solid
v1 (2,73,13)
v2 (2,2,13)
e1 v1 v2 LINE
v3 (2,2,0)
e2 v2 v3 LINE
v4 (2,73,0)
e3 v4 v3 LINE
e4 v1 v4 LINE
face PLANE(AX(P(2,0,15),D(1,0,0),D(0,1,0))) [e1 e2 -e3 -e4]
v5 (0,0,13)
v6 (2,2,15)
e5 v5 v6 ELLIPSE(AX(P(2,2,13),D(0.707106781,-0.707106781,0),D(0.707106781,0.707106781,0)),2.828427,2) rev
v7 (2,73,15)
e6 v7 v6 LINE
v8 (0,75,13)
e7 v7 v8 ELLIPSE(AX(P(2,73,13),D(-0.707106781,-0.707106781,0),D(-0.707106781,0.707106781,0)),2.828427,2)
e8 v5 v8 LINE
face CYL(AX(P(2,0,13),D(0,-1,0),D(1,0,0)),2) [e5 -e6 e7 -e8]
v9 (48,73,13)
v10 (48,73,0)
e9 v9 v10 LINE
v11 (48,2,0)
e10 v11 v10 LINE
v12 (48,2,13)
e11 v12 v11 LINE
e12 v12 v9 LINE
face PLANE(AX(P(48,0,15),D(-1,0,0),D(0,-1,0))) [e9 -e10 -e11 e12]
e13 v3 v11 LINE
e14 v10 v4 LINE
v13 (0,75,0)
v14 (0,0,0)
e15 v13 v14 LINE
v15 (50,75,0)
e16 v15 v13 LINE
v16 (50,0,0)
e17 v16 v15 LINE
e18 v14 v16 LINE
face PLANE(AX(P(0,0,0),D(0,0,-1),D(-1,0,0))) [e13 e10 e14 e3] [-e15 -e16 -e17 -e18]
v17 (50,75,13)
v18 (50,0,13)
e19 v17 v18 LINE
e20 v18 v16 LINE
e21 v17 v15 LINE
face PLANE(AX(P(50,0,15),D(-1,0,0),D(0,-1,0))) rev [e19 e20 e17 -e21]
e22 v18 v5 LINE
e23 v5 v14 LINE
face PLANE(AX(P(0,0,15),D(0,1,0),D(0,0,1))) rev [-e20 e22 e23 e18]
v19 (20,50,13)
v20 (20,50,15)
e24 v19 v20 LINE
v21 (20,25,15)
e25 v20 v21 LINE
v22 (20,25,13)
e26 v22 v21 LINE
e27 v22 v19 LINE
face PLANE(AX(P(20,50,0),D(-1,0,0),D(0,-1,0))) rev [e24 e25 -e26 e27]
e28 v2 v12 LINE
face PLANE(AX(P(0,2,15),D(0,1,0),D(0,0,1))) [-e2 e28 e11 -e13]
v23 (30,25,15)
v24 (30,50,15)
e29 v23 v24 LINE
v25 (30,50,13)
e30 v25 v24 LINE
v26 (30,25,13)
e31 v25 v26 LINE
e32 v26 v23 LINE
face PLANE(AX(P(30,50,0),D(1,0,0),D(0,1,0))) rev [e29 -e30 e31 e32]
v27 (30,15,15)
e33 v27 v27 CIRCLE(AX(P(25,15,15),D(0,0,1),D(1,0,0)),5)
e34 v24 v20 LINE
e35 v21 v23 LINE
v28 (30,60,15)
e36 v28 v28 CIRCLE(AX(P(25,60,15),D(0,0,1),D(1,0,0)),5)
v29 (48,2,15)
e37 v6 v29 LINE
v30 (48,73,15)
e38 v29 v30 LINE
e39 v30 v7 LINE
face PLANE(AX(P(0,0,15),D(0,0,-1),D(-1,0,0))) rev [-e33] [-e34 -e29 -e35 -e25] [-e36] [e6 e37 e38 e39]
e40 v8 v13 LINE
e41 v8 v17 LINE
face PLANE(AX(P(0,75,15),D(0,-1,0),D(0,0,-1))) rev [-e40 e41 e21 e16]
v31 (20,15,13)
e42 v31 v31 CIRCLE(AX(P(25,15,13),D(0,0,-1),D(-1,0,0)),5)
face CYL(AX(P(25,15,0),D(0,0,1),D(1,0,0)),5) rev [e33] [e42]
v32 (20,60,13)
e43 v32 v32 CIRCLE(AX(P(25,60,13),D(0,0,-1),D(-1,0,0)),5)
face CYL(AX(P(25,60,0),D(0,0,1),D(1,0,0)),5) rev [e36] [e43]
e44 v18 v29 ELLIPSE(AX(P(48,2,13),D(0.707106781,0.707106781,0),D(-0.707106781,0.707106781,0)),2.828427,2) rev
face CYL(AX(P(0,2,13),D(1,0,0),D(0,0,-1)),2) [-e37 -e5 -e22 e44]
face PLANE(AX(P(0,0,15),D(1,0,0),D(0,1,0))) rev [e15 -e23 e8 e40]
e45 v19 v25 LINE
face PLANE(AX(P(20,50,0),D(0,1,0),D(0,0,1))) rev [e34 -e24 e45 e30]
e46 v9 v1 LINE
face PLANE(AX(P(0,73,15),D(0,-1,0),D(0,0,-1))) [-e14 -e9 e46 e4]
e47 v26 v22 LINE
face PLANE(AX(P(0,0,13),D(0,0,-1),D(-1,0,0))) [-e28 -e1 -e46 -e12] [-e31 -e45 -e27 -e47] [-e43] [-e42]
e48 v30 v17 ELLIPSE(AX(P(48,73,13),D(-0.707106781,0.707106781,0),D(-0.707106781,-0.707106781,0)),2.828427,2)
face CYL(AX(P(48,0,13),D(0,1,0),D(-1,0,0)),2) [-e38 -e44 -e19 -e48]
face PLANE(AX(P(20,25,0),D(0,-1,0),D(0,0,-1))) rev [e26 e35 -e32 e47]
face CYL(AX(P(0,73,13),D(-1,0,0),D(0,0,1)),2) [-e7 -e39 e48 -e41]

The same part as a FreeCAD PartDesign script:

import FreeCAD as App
import Part
import Sketcher

V = App.Vector
Q = App.Units.Quantity


def edges_at(feature, points):
    """Names of the edges that pass closest to the given points."""
    edges = feature.Shape.Edges
    near = lambda p: min(range(len(edges)), key=lambda i: edges[i].distToShape(Part.Vertex(*p))[0])
    return sorted({f"Edge{near(p) + 1}" for p in points})


def faces_at(feature, points):
    """Names of the faces that lie closest to the given points."""
    faces = feature.Shape.Faces
    near = lambda p: min(range(len(faces)), key=lambda i: faces[i].distToShape(Part.Vertex(*p))[0])
    return sorted({f"Face{near(p) + 1}" for p in points})

doc = App.newDocument("Part")
body = doc.addObject("PartDesign::Body", "Body")

# Sketch on XY plane
sketch1 = body.newObject("Sketcher::SketchObject", "Sketch")
sketch1.AttachmentSupport = (doc.getObject("XY_Plane"), [""])
sketch1.MapMode = "FlatFace"
sketch1.addGeometry(Part.LineSegment(V(0, 75, 0), V(0, 0, 0)), False)
sketch1.addGeometry(Part.LineSegment(V(0, 0, 0), V(50, 0, 0)), False)
sketch1.addGeometry(Part.LineSegment(V(50, 0, 0), V(50, 75, 0)), False)
sketch1.addGeometry(Part.LineSegment(V(50, 75, 0), V(0, 75, 0)), False)
sketch1.addConstraint(Sketcher.Constraint("Coincident", 0, 2, 1, 1))
sketch1.addConstraint(Sketcher.Constraint("Coincident", 1, 2, 2, 1))
sketch1.addConstraint(Sketcher.Constraint("Coincident", 2, 2, 3, 1))
sketch1.addConstraint(Sketcher.Constraint("Coincident", 3, 2, 0, 1))
sketch1.addConstraint(Sketcher.Constraint("Vertical", 0))
sketch1.addConstraint(Sketcher.Constraint("Horizontal", 1))
sketch1.addConstraint(Sketcher.Constraint("Vertical", 2))
sketch1.addConstraint(Sketcher.Constraint("Horizontal", 3))
sketch1.addConstraint(Sketcher.Constraint("Coincident", 0, 2, -1, 1))
sketch1.addConstraint(Sketcher.Constraint("DistanceX", 1, 1, 1, 2, Q("50 mm")))
sketch1.addConstraint(Sketcher.Constraint("DistanceY", 0, 2, 0, 1, Q("75 mm")))
pad1 = body.newObject("PartDesign::Pad", "Pad")
pad1.Profile = sketch1
pad1.Length = 15
doc.recompute()

thickness = body.newObject("PartDesign::Thickness", "Thickness")
thickness.Base = (pad1, faces_at(pad1, [(25, 37.5, 0)]))
thickness.Value = 2
thickness.Reversed = True
thickness.Join = "Intersection"
doc.recompute()

fillet = body.newObject("PartDesign::Fillet", "Fillet")
fillet.Base = (thickness, edges_at(thickness, [
    (50, 37.5, 15),
    (25, 75, 15),
    (0, 37.5, 15),
    (25, 0, 15),
]))
fillet.Radius = 2

# Sketch on XY plane
sketch2 = body.newObject("Sketcher::SketchObject", "Sketch001")
sketch2.AttachmentSupport = (doc.getObject("XY_Plane"), [""])
sketch2.MapMode = "FlatFace"
sketch2.AttachmentOffset = App.Placement(V(0, 0, 15), App.Rotation())
sketch2.addGeometry(Part.Circle(V(25, 60, 0), V(0, 0, 1), 5), False)
sketch2.addGeometry(Part.Circle(V(25, 15, 0), V(0, 0, 1), 5), False)
sketch2.addGeometry(Part.LineSegment(V(20, 50, 0), V(20, 25, 0)), False)
sketch2.addGeometry(Part.LineSegment(V(20, 25, 0), V(30, 25, 0)), False)
sketch2.addGeometry(Part.LineSegment(V(30, 25, 0), V(30, 50, 0)), False)
sketch2.addGeometry(Part.LineSegment(V(30, 50, 0), V(20, 50, 0)), False)
sketch2.addConstraint(Sketcher.Constraint("Coincident", 2, 2, 3, 1))
sketch2.addConstraint(Sketcher.Constraint("Coincident", 3, 2, 4, 1))
sketch2.addConstraint(Sketcher.Constraint("Coincident", 4, 2, 5, 1))
sketch2.addConstraint(Sketcher.Constraint("Coincident", 5, 2, 2, 1))
sketch2.addConstraint(Sketcher.Constraint("Vertical", 2))
sketch2.addConstraint(Sketcher.Constraint("Horizontal", 3))
sketch2.addConstraint(Sketcher.Constraint("Vertical", 4))
sketch2.addConstraint(Sketcher.Constraint("Horizontal", 5))
sketch2.addConstraint(Sketcher.Constraint("Equal", 0, 1))
sketch2.addConstraint(Sketcher.Constraint("Vertical", 0, 3, 1, 3))
sketch2.addConstraint(Sketcher.Constraint("Diameter", 0, Q("10 mm")))
sketch2.addConstraint(Sketcher.Constraint("DistanceX", 3, 1, 3, 2, Q("10 mm")))
sketch2.addConstraint(Sketcher.Constraint("DistanceY", 2, 2, 2, 1, Q("25 mm")))
sketch2.addConstraint(Sketcher.Constraint("DistanceX", -1, 1, 0, 3, Q("25 mm")))
sketch2.addConstraint(Sketcher.Constraint("DistanceY", -1, 1, 0, 3, Q("60 mm")))
sketch2.addConstraint(Sketcher.Constraint("DistanceY", -1, 1, 1, 3, Q("15 mm")))
sketch2.addConstraint(Sketcher.Constraint("DistanceX", -1, 1, 2, 2, Q("20 mm")))
sketch2.addConstraint(Sketcher.Constraint("DistanceY", -1, 1, 2, 2, Q("25 mm")))
pocket1 = body.newObject("PartDesign::Pocket", "Pocket")
pocket1.Profile = sketch2
pocket1.Type = "ThroughAll"

doc.recompute()
